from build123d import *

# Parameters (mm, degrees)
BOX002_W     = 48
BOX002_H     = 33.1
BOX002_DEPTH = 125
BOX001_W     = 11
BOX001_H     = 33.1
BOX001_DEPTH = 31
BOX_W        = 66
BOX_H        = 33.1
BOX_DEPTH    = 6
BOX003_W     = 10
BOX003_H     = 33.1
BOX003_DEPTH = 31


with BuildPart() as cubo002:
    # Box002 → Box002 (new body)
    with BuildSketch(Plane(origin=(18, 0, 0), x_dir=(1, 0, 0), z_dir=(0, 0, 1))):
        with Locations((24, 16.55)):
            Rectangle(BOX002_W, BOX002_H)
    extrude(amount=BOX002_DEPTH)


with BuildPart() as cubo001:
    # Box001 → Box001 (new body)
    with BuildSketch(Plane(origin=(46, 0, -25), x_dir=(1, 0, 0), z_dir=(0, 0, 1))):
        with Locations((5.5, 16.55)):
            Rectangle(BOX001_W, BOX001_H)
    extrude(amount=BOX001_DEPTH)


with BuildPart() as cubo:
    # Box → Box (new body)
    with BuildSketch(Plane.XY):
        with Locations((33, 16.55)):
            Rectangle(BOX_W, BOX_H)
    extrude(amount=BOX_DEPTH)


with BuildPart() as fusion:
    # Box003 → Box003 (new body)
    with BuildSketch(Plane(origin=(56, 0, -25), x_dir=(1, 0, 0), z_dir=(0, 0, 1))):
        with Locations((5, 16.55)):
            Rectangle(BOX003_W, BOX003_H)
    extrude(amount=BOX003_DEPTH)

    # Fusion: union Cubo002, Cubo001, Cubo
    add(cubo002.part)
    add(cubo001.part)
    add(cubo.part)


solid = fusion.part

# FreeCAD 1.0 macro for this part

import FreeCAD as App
import Part
import Sketcher

V = App.Vector
Q = App.Units.Quantity

doc = App.newDocument("Part")
body = doc.addObject("PartDesign::Body", "Body")

# Sketch on XY plane
sketch1 = doc.addObject("Sketcher::SketchObject", "Sketch")
body.addObject(sketch1)
sketch1.AttachmentSupport = (doc.XY_Plane, [""])
sketch1.MapMode = "FlatFace"
sketch1.addGeometry([
    Part.LineSegment(V(18, 33.1, 0), V(18, 0, 0)),
    Part.LineSegment(V(18, 0, 0), V(66, 0, 0)),
    Part.LineSegment(V(66, 0, 0), V(66, 33.1, 0)),
    Part.LineSegment(V(66, 33.1, 0), V(18, 33.1, 0)),
], False)
sketch1.addConstraint([
    Sketcher.Constraint("Coincident", 0, 2, 1, 1),
    Sketcher.Constraint("Coincident", 1, 2, 2, 1),
    Sketcher.Constraint("Coincident", 2, 2, 3, 1),
    Sketcher.Constraint("Coincident", 3, 2, 0, 1),
    Sketcher.Constraint("Vertical", 0),
    Sketcher.Constraint("Horizontal", 1),
    Sketcher.Constraint("Vertical", 2),
    Sketcher.Constraint("Horizontal", 3),
    Sketcher.Constraint("PointOnObject", 0, 2, -1),
    Sketcher.Constraint("DistanceX", 1, 1, 1, 2, Q("48 mm")),
    Sketcher.Constraint("DistanceY", 0, 2, 0, 1, Q("33.1 mm")),
    Sketcher.Constraint("DistanceX", -1, 1, 0, 2, Q("18 mm")),
])
pad1 = doc.addObject("PartDesign::Pad", "Pad")
body.addObject(pad1)
pad1.Profile = sketch1
pad1.Length = 125
body2 = doc.addObject("PartDesign::Body", "Body001")

# Sketch on XY plane
sketch2 = doc.addObject("Sketcher::SketchObject", "Sketch001")
body2.addObject(sketch2)
sketch2.AttachmentSupport = (doc.getObject("XY_Plane001"), [""])
sketch2.MapMode = "FlatFace"
sketch2.AttachmentOffset = App.Placement(V(0, 0, -25), App.Rotation())
sketch2.addGeometry([
    Part.LineSegment(V(46, 33.1, 0), V(46, 0, 0)),
    Part.LineSegment(V(46, 0, 0), V(57, 0, 0)),
    Part.LineSegment(V(57, 0, 0), V(57, 33.1, 0)),
    Part.LineSegment(V(57, 33.1, 0), V(46, 33.1, 0)),
], False)
sketch2.addConstraint([
    Sketcher.Constraint("Coincident", 0, 2, 1, 1),
    Sketcher.Constraint("Coincident", 1, 2, 2, 1),
    Sketcher.Constraint("Coincident", 2, 2, 3, 1),
    Sketcher.Constraint("Coincident", 3, 2, 0, 1),
    Sketcher.Constraint("Vertical", 0),
    Sketcher.Constraint("Horizontal", 1),
    Sketcher.Constraint("Vertical", 2),
    Sketcher.Constraint("Horizontal", 3),
    Sketcher.Constraint("PointOnObject", 0, 2, -1),
    Sketcher.Constraint("DistanceX", 1, 1, 1, 2, Q("11 mm")),
    Sketcher.Constraint("DistanceY", 0, 2, 0, 1, Q("33.1 mm")),
    Sketcher.Constraint("DistanceX", -1, 1, 0, 2, Q("46 mm")),
])
pad2 = doc.addObject("PartDesign::Pad", "Pad001")
body2.addObject(pad2)
pad2.Profile = sketch2
pad2.Length = 31
body3 = doc.addObject("PartDesign::Body", "Body002")

# Sketch on XY plane
sketch3 = doc.addObject("Sketcher::SketchObject", "Sketch002")
body3.addObject(sketch3)
sketch3.AttachmentSupport = (doc.getObject("XY_Plane002"), [""])
sketch3.MapMode = "FlatFace"
sketch3.addGeometry([
    Part.LineSegment(V(0, 33.1, 0), V(0, 0, 0)),
    Part.LineSegment(V(0, 0, 0), V(66, 0, 0)),
    Part.LineSegment(V(66, 0, 0), V(66, 33.1, 0)),
    Part.LineSegment(V(66, 33.1, 0), V(0, 33.1, 0)),
], False)
sketch3.addConstraint([
    Sketcher.Constraint("Coincident", 0, 2, 1, 1),
    Sketcher.Constraint("Coincident", 1, 2, 2, 1),
    Sketcher.Constraint("Coincident", 2, 2, 3, 1),
    Sketcher.Constraint("Coincident", 3, 2, 0, 1),
    Sketcher.Constraint("Vertical", 0),
    Sketcher.Constraint("Horizontal", 1),
    Sketcher.Constraint("Vertical", 2),
    Sketcher.Constraint("Horizontal", 3),
    Sketcher.Constraint("Coincident", 0, 2, -1, 1),
    Sketcher.Constraint("DistanceX", 1, 1, 1, 2, Q("66 mm")),
    Sketcher.Constraint("DistanceY", 0, 2, 0, 1, Q("33.1 mm")),
])
pad3 = doc.addObject("PartDesign::Pad", "Pad002")
body3.addObject(pad3)
pad3.Profile = sketch3
pad3.Length = 6
body4 = doc.addObject("PartDesign::Body", "Body003")

# Sketch on XY plane
sketch4 = doc.addObject("Sketcher::SketchObject", "Sketch003")
body4.addObject(sketch4)
sketch4.AttachmentSupport = (doc.getObject("XY_Plane003"), [""])
sketch4.MapMode = "FlatFace"
sketch4.AttachmentOffset = App.Placement(V(0, 0, -25), App.Rotation())
sketch4.addGeometry([
    Part.LineSegment(V(56, 33.1, 0), V(56, 0, 0)),
    Part.LineSegment(V(56, 0, 0), V(66, 0, 0)),
    Part.LineSegment(V(66, 0, 0), V(66, 33.1, 0)),
    Part.LineSegment(V(66, 33.1, 0), V(56, 33.1, 0)),
], False)
sketch4.addConstraint([
    Sketcher.Constraint("Coincident", 0, 2, 1, 1),
    Sketcher.Constraint("Coincident", 1, 2, 2, 1),
    Sketcher.Constraint("Coincident", 2, 2, 3, 1),
    Sketcher.Constraint("Coincident", 3, 2, 0, 1),
    Sketcher.Constraint("Vertical", 0),
    Sketcher.Constraint("Horizontal", 1),
    Sketcher.Constraint("Vertical", 2),
    Sketcher.Constraint("Horizontal", 3),
    Sketcher.Constraint("PointOnObject", 0, 2, -1),
    Sketcher.Constraint("DistanceX", 1, 1, 1, 2, Q("10 mm")),
    Sketcher.Constraint("DistanceY", 0, 2, 0, 1, Q("33.1 mm")),
    Sketcher.Constraint("DistanceX", -1, 1, 0, 2, Q("56 mm")),
])
pad4 = doc.addObject("PartDesign::Pad", "Pad003")
body4.addObject(pad4)
pad4.Profile = sketch4
pad4.Length = 31
doc.recompute()

boolean = doc.addObject("PartDesign::Boolean", "Boolean")
body4.addObject(boolean)
boolean.Type = "Fuse"
boolean.addObjects([body])
doc.recompute()

boolean2 = doc.addObject("PartDesign::Boolean", "Boolean001")
body4.addObject(boolean2)
boolean2.Type = "Fuse"
boolean2.addObjects([body2])
doc.recompute()

boolean3 = doc.addObject("PartDesign::Boolean", "Boolean002")
body4.addObject(boolean3)
boolean3.Type = "Fuse"
boolean3.addObjects([body3])

doc.recompute()
